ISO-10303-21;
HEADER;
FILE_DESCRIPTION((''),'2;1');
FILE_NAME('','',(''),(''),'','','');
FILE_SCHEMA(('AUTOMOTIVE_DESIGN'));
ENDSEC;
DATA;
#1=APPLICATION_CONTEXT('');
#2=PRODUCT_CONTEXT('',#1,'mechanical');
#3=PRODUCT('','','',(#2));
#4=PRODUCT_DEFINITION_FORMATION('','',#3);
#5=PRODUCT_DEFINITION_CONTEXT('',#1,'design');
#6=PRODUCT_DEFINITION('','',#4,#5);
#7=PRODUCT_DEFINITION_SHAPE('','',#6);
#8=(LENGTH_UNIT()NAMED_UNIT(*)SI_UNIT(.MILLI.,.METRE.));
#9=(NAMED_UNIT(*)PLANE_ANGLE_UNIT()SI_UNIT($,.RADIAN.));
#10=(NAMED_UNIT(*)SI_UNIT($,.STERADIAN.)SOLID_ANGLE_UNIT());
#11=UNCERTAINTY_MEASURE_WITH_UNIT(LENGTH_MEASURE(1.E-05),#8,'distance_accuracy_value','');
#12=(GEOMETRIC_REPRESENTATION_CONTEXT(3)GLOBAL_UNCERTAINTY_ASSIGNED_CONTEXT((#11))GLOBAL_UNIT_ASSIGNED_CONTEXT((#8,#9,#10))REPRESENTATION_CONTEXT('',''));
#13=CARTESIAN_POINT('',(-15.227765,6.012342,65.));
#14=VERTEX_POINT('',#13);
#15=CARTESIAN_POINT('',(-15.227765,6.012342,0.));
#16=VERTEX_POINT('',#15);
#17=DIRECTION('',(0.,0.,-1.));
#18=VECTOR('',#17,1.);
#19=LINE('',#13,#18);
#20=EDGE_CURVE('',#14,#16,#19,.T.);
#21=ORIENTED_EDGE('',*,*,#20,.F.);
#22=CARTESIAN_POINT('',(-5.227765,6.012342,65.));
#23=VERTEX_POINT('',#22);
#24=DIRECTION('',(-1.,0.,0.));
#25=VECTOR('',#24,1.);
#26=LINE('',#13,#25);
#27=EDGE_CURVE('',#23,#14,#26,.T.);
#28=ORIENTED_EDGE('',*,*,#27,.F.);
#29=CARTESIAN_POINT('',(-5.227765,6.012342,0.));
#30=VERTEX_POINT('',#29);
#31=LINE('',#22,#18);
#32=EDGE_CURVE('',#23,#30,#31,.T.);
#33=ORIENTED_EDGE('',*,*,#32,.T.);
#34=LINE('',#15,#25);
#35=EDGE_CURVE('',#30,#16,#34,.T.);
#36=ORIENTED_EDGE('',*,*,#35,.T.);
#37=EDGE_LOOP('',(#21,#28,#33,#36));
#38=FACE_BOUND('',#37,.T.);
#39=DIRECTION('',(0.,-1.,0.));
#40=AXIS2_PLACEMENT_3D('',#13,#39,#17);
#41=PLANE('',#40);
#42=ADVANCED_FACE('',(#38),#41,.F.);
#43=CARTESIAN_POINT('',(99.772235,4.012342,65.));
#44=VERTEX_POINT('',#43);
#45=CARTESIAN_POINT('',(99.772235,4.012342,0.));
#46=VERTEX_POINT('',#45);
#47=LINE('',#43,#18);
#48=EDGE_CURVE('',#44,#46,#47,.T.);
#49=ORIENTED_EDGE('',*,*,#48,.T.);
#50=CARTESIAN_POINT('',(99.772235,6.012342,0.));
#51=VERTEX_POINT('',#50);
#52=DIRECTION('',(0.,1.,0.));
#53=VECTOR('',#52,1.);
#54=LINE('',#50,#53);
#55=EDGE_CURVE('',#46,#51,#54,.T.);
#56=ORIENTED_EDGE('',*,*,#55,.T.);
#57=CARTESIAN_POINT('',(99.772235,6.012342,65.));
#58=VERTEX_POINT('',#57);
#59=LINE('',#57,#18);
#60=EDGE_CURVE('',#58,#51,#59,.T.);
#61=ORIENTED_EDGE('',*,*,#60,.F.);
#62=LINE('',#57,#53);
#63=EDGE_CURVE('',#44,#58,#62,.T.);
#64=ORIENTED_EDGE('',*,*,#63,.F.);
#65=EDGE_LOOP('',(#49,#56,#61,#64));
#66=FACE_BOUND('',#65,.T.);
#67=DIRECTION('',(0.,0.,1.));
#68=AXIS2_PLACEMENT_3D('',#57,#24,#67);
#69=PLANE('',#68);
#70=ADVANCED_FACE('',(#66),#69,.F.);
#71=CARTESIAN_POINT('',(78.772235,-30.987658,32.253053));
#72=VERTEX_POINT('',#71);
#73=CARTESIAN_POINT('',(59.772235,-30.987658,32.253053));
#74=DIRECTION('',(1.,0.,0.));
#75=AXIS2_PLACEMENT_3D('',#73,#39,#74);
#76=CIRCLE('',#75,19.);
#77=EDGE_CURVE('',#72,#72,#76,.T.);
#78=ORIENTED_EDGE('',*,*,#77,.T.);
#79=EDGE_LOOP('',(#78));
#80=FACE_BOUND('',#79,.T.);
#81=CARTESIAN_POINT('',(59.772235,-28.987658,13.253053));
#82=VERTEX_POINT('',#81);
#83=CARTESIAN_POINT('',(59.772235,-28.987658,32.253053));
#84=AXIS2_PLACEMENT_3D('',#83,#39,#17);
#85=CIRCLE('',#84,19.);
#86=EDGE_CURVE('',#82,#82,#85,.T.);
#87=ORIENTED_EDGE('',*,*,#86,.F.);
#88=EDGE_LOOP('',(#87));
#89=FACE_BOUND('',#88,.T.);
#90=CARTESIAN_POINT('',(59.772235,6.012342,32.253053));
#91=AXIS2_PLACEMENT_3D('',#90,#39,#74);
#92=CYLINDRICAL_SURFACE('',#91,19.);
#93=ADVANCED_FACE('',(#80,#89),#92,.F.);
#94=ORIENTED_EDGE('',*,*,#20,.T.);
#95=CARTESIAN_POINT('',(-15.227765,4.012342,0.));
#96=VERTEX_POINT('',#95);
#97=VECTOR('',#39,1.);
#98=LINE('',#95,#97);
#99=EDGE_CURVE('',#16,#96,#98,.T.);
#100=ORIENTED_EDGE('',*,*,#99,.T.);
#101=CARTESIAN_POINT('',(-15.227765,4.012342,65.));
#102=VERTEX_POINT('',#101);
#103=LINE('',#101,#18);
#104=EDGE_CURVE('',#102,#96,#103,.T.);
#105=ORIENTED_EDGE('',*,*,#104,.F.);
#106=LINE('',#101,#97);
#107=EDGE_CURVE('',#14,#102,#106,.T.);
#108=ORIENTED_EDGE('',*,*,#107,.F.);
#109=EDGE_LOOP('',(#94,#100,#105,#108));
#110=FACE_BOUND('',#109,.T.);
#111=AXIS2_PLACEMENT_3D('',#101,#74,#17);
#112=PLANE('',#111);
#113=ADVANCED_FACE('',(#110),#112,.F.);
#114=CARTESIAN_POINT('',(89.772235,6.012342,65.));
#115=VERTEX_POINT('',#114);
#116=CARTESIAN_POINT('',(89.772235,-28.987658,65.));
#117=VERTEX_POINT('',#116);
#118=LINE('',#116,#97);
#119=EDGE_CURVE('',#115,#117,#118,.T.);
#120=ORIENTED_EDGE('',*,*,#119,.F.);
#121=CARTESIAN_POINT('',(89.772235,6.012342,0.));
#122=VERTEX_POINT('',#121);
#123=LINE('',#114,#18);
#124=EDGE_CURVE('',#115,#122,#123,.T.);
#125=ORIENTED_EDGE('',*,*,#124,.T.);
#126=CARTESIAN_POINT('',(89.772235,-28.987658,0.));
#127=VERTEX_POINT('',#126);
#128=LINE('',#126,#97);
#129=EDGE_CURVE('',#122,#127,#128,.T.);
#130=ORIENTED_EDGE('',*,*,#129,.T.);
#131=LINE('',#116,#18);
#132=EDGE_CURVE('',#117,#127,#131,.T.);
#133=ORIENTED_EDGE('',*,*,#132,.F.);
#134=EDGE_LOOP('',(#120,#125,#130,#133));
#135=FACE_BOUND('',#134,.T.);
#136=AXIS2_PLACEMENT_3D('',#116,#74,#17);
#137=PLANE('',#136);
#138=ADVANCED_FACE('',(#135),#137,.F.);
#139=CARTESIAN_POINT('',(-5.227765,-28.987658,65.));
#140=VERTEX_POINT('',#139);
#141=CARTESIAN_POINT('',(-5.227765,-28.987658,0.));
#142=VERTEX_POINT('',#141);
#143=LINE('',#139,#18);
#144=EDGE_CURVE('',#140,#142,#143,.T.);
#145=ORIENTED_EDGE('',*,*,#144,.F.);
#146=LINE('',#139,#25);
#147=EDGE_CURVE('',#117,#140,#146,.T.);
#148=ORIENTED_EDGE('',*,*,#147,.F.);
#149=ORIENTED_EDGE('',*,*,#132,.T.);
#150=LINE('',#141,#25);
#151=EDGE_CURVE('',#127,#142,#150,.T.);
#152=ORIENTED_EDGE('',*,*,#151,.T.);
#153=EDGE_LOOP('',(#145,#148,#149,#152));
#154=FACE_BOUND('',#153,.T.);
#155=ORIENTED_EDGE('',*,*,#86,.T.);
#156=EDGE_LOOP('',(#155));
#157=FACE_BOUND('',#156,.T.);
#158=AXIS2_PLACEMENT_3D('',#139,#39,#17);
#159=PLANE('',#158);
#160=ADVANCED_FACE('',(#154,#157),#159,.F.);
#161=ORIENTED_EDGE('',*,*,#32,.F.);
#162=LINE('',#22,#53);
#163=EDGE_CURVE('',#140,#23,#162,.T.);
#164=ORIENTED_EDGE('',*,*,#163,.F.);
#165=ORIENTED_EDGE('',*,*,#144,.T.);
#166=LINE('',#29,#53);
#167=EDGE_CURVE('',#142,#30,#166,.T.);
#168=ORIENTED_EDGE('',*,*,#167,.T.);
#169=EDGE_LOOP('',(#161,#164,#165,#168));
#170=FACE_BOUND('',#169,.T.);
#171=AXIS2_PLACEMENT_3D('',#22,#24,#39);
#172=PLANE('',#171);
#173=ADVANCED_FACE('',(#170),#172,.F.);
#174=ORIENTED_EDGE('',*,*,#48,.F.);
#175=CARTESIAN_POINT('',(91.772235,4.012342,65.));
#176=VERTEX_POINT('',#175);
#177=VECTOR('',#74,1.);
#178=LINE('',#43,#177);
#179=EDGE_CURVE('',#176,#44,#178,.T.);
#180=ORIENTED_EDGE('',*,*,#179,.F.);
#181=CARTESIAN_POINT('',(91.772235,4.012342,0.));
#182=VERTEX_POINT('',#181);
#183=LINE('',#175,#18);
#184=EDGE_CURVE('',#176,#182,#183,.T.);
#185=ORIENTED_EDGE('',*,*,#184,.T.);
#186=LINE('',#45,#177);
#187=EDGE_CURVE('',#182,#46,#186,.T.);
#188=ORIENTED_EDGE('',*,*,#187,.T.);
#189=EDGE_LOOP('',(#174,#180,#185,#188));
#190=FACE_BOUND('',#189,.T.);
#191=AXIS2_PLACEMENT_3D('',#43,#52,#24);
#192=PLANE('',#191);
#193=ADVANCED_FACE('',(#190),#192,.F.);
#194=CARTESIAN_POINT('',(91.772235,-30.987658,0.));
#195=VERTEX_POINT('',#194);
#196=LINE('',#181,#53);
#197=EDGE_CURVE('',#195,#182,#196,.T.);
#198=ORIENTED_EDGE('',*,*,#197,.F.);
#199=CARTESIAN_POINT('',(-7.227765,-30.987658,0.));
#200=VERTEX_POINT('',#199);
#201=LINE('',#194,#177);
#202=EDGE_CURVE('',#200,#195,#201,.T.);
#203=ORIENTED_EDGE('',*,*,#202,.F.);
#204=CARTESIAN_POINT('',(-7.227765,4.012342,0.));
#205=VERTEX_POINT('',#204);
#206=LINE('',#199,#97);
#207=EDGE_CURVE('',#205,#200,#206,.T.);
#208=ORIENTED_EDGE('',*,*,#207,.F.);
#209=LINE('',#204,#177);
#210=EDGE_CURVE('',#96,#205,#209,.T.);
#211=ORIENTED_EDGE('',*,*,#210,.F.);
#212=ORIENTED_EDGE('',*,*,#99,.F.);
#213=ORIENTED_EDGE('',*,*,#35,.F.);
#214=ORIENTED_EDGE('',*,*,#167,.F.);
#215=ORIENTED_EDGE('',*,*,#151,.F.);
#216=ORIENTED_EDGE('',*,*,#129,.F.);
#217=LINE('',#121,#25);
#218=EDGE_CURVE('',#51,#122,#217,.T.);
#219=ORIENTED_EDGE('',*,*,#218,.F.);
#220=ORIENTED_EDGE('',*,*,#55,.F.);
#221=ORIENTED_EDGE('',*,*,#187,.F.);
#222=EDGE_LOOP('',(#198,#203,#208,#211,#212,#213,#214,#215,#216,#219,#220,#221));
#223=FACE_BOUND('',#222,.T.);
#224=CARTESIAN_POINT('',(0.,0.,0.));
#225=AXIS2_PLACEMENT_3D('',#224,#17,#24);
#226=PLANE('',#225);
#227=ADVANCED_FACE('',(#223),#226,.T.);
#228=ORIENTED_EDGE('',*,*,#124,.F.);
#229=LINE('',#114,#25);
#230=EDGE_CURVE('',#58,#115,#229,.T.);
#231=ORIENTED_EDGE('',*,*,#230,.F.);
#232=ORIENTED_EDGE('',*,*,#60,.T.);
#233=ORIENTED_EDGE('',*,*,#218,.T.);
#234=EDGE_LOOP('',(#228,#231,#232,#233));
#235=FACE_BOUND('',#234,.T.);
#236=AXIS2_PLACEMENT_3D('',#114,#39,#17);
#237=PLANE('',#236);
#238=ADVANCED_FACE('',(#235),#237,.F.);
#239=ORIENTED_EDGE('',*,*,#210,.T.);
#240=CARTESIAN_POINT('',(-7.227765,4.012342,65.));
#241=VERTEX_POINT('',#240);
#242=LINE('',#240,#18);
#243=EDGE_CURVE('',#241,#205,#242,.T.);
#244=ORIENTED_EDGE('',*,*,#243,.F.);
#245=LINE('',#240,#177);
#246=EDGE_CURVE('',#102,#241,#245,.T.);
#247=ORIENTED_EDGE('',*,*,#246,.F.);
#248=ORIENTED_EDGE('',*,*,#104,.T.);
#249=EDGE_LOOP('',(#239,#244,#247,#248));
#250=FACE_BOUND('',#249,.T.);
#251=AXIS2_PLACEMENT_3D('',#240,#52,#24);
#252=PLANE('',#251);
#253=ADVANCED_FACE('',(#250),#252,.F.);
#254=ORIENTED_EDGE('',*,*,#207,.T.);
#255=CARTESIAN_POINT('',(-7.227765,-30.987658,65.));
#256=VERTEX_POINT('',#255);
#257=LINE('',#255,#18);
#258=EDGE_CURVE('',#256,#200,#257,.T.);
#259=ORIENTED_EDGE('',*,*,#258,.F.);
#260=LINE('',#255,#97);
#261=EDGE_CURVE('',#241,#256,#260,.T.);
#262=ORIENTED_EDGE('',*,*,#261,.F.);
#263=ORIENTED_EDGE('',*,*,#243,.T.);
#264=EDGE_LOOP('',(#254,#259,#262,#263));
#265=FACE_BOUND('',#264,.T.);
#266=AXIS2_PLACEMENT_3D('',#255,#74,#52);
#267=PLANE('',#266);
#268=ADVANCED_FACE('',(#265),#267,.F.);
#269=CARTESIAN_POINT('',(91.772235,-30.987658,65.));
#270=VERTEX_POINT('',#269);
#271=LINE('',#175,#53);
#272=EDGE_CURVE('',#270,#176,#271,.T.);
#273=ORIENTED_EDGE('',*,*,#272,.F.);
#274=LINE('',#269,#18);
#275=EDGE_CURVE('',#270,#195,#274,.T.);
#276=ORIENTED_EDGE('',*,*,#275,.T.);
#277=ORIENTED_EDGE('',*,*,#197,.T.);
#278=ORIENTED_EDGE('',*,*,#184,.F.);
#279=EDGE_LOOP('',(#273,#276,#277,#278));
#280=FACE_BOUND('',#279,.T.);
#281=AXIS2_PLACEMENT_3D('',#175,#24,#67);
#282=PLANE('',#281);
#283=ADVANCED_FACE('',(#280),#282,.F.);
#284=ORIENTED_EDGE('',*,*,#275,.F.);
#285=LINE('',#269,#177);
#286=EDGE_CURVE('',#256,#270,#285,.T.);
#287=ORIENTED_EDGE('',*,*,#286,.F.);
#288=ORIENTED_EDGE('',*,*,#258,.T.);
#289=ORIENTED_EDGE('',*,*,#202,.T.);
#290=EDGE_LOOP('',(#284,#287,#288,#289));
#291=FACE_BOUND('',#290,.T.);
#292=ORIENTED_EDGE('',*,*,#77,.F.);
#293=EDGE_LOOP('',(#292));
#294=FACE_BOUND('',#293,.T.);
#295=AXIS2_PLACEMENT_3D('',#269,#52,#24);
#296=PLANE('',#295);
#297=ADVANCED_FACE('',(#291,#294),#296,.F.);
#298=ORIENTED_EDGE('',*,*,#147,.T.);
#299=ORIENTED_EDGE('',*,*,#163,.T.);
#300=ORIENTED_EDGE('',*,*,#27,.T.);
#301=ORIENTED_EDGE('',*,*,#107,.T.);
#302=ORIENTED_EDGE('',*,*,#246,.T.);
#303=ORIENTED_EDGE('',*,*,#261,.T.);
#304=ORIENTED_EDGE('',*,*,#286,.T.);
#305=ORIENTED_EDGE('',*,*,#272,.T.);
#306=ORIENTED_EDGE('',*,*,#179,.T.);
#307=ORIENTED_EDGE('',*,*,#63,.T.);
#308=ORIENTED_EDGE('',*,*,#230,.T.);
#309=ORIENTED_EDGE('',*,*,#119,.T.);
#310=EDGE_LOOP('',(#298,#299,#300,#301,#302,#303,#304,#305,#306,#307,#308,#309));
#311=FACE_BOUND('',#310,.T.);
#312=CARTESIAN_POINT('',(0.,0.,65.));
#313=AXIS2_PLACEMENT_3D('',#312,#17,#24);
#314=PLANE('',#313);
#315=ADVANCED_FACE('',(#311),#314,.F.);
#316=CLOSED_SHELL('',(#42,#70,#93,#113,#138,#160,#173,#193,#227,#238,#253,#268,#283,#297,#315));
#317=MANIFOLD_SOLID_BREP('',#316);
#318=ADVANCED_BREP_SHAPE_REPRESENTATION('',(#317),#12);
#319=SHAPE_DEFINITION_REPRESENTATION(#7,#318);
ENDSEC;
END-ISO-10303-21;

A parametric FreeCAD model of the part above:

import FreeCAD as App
import Part
import Sketcher
from FreeCAD import Vector
Q = App.Units.Quantity


def add_polygon(sketch, points):
    """Adds a closed chain of lines whose ends are joined by coincident constraints."""
    first, n = sketch.GeometryCount, len(points)
    for a, b in zip(points, points[1:] + points[:1]):
        sketch.addGeometry(Part.LineSegment(App.Vector(*a, 0), App.Vector(*b, 0)), False)
    for i in range(n):
        sketch.addConstraint(Sketcher.Constraint("Coincident", first + i, 2, first + (i + 1) % n, 1))

doc = App.newDocument("Part")
body = doc.addObject("PartDesign::Body", "Body")

# Sketch on XY plane
sketch1 = doc.addObject("Sketcher::SketchObject", "Sketch")
body.addObject(sketch1)
sketch1.AttachmentSupport = (doc.XY_Plane, [""])
sketch1.MapMode = "FlatFace"
add_polygon(sketch1, [(-5.227765, 6.012342), (-15.227765, 6.012342), (-15.227765, 4.012342), (-7.227765, 4.012342), (-7.227765, -30.987658), (91.772235, -30.987658), (91.772235, 4.012342), (99.772235, 4.012342), (99.772235, 6.012342), (89.772235, 6.012342), (89.772235, -28.987658), (-5.227765, -28.987658)])  # lines 0-11
sketch1.addConstraint(Sketcher.Constraint("Horizontal", 0))
sketch1.addConstraint(Sketcher.Constraint("Vertical", 1))
sketch1.addConstraint(Sketcher.Constraint("Horizontal", 2))
sketch1.addConstraint(Sketcher.Constraint("Vertical", 3))
sketch1.addConstraint(Sketcher.Constraint("Horizontal", 4))
sketch1.addConstraint(Sketcher.Constraint("Vertical", 5))
sketch1.addConstraint(Sketcher.Constraint("Horizontal", 6))
sketch1.addConstraint(Sketcher.Constraint("Vertical", 7))
sketch1.addConstraint(Sketcher.Constraint("Horizontal", 8))
sketch1.addConstraint(Sketcher.Constraint("Vertical", 9))
sketch1.addConstraint(Sketcher.Constraint("Horizontal", 10))
sketch1.addConstraint(Sketcher.Constraint("Vertical", 11))
sketch1.addConstraint(Sketcher.Constraint("Horizontal", 2, 2, 5, 2))
sketch1.addConstraint(Sketcher.Constraint("Horizontal", 0, 2, 7, 2))
sketch1.addConstraint(Sketcher.Constraint("Equal", 2, 6))
sketch1.addConstraint(Sketcher.Constraint("Equal", 0, 8))
sketch1.addConstraint(Sketcher.Constraint("Equal", 5, 9))
sketch1.addConstraint(Sketcher.Constraint("DistanceX", 0, 2, 0, 1, Q("10 mm")))
sketch1.addConstraint(Sketcher.Constraint("DistanceX", 2, 1, 2, 2, Q("8 mm")))
sketch1.addConstraint(Sketcher.Constraint("DistanceX", 4, 1, 4, 2, Q("99 mm")))
sketch1.addConstraint(Sketcher.Constraint("DistanceY", 1, 2, 1, 1, Q("2 mm")))
sketch1.addConstraint(Sketcher.Constraint("DistanceY", 3, 2, 3, 1, Q("35 mm")))
sketch1.addConstraint(Sketcher.Constraint("DistanceY", -1, 1, 0, 2, Q("6.012342 mm")))
sketch1.addConstraint(Sketcher.Constraint("DistanceX", 0, 2, -1, 1, Q("15.227765 mm")))
pad1 = doc.addObject("PartDesign::Pad", "Pad")
body.addObject(pad1)
pad1.Profile = sketch1
pad1.Length = 65

# Sketch on XZ plane
sketch2 = doc.addObject("Sketcher::SketchObject", "Sketch001")
body.addObject(sketch2)
sketch2.AttachmentSupport = (doc.XZ_Plane, [""])
sketch2.MapMode = "FlatFace"
sketch2.AttachmentOffset = App.Placement(Vector(0, 0, 30.987658), App.Rotation())
sketch2.addGeometry(Part.Circle(Vector(59.772235, 32.253053, 0), Vector(0, 0, 1), 19), False)
sketch2.addConstraint(Sketcher.Constraint("Diameter", 0, Q("38 mm")))
sketch2.addConstraint(Sketcher.Constraint("DistanceX", -1, 1, 0, 3, Q("59.772235 mm")))
sketch2.addConstraint(Sketcher.Constraint("DistanceY", -1, 1, 0, 3, Q("32.253053 mm")))
pocket1 = doc.addObject("PartDesign::Pocket", "Pocket")
body.addObject(pocket1)
pocket1.Profile = sketch2
pocket1.Type = "ThroughAll"

doc.recompute()
